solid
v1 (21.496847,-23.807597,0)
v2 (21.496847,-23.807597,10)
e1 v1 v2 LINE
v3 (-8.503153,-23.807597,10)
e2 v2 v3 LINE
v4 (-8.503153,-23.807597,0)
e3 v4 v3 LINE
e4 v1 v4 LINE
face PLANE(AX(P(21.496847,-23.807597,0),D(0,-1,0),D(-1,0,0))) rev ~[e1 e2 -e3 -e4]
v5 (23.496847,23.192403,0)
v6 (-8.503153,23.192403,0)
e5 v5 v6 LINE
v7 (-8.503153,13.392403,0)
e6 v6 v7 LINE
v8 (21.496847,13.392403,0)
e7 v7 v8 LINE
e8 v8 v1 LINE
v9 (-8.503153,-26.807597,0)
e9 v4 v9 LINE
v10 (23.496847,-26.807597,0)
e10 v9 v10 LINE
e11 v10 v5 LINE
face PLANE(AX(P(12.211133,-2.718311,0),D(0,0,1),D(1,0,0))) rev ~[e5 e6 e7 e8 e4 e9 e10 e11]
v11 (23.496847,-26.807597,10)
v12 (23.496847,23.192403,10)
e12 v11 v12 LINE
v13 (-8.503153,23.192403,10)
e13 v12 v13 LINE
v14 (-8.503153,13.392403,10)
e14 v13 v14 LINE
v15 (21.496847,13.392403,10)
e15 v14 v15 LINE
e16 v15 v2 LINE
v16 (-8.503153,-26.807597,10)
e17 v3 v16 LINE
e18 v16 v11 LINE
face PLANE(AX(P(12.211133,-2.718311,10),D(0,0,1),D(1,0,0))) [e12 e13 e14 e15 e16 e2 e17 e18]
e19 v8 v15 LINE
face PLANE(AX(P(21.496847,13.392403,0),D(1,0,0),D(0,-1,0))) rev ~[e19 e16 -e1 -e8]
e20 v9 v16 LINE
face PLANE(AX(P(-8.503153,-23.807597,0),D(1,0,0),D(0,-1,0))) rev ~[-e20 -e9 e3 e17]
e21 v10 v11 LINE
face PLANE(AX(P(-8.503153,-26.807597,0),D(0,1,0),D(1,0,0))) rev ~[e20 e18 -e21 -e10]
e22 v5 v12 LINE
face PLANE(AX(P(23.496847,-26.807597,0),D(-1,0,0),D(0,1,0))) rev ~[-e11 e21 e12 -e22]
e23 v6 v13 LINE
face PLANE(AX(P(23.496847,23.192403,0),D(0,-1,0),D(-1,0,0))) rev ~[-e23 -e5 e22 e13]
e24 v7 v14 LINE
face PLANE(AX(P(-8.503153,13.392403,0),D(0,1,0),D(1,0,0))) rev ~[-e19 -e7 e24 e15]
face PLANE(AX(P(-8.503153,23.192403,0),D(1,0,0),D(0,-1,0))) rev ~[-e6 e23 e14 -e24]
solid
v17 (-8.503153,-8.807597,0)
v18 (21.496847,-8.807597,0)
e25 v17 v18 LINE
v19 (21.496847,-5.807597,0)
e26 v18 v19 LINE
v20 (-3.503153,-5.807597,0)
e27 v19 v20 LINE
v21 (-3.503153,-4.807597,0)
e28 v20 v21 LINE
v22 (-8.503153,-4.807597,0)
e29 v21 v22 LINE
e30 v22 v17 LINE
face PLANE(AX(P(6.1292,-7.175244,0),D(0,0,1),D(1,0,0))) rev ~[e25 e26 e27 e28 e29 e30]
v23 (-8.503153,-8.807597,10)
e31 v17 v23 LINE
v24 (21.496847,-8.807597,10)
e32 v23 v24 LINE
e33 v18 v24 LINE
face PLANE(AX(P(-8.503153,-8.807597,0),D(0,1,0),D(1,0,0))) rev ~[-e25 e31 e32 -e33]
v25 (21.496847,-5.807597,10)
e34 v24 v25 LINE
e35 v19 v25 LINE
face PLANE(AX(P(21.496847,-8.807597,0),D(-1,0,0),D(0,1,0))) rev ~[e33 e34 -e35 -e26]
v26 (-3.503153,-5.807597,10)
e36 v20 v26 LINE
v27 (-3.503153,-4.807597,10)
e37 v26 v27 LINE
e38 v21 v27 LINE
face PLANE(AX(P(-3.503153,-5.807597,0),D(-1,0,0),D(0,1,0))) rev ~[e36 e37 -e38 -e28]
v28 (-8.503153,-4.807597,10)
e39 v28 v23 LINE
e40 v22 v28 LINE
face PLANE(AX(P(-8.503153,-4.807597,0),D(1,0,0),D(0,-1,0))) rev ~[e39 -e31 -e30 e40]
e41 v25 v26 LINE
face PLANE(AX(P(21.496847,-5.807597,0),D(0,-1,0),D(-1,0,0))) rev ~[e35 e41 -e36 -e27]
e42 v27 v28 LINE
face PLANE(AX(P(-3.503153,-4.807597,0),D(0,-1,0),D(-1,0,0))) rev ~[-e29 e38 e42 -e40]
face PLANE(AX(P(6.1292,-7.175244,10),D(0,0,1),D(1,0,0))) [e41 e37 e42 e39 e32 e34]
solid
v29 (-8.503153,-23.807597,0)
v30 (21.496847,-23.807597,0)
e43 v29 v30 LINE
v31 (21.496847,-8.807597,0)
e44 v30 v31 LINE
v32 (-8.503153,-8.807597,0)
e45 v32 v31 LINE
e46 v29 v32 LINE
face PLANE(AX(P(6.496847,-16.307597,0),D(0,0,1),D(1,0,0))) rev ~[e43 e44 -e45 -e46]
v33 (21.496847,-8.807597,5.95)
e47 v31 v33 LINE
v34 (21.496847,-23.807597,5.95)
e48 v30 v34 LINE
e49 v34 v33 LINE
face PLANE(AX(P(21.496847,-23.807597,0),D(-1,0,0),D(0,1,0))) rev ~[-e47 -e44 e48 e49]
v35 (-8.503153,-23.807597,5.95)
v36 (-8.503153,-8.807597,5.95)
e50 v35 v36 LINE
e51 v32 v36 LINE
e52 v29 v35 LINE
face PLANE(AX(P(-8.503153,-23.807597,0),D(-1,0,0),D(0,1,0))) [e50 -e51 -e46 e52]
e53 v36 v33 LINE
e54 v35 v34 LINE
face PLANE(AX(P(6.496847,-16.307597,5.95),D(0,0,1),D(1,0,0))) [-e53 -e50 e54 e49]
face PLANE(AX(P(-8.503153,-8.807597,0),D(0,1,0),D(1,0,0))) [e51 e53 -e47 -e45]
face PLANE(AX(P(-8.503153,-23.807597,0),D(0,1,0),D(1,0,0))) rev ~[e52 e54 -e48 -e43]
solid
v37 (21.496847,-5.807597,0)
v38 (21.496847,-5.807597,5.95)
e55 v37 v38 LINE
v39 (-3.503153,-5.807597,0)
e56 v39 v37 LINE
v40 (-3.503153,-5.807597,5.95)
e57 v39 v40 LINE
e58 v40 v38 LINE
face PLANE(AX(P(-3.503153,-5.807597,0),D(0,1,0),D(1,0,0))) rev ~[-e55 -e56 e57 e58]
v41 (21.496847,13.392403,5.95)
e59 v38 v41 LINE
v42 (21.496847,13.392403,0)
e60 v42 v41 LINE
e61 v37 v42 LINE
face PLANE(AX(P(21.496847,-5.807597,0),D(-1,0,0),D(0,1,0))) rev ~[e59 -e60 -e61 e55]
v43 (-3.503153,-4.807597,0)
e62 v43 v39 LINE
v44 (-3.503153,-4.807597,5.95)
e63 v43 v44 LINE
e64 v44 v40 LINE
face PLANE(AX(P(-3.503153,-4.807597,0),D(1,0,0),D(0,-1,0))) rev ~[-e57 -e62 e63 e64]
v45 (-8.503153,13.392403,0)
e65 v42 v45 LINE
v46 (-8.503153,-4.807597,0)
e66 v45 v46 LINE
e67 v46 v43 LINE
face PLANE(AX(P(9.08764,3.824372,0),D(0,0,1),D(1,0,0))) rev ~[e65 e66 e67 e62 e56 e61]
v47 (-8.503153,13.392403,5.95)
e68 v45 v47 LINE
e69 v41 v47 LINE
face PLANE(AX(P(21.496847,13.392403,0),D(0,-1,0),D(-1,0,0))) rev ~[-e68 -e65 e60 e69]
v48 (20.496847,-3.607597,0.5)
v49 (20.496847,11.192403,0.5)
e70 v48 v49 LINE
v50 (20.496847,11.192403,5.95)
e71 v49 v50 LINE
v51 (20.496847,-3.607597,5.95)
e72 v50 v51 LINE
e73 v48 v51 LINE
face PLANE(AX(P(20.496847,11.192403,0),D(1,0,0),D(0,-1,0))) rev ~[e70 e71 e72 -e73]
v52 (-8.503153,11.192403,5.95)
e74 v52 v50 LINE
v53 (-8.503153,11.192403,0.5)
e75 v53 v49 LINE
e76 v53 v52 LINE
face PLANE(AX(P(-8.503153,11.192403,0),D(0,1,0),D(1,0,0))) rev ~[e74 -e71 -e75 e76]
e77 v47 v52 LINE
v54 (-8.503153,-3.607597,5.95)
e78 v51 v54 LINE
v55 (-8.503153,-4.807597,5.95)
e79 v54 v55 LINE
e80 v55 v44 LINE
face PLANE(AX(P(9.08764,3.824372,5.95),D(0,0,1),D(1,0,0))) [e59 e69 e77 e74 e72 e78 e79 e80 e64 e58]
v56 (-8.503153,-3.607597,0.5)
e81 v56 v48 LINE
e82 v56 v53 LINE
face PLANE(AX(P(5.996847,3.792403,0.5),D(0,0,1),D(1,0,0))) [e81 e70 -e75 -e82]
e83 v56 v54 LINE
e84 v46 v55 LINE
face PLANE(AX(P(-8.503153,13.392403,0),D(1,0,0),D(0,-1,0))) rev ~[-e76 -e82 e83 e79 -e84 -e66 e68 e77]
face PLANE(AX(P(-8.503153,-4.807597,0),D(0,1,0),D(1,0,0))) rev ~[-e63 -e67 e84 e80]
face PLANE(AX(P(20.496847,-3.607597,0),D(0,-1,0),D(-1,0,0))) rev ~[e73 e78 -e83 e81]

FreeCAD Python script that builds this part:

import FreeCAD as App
import Part
import Sketcher
Q = App.Units.Quantity


def add_polygon(sketch, points):
    """Adds a closed chain of lines whose ends are joined by coincident constraints."""
    first, n = sketch.GeometryCount, len(points)
    for a, b in zip(points, points[1:] + points[:1]):
        sketch.addGeometry(Part.LineSegment(App.Vector(*a, 0), App.Vector(*b, 0)), False)
    for i in range(n):
        sketch.addConstraint(Sketcher.Constraint("Coincident", first + i, 2, first + (i + 1) % n, 1))

doc = App.newDocument("Part")
body = doc.addObject("PartDesign::Body", "Body")

# Sketch on XY plane
sketch1 = doc.addObject("Sketcher::SketchObject", "Sketch")
body.addObject(sketch1)
sketch1.AttachmentSupport = (doc.XY_Plane, [""])
sketch1.MapMode = "FlatFace"
add_polygon(sketch1, [(-8.503153, 11.192403), (-8.503153, -3.607597), (20.496847, -3.607597), (20.496847, 11.192403)])  # lines 0-3
sketch1.addConstraint([
    Sketcher.Constraint("Vertical", 0),
    Sketcher.Constraint("Horizontal", 1),
    Sketcher.Constraint("Vertical", 2),
    Sketcher.Constraint("Horizontal", 3),
    Sketcher.Constraint("DistanceX", 1, 1, 1, 2, Q("29 mm")),
    Sketcher.Constraint("DistanceY", 0, 2, 0, 1, Q("14.8 mm")),
    Sketcher.Constraint("DistanceX", 0, 2, -1, 1, Q("8.503153 mm")),
    Sketcher.Constraint("DistanceY", 0, 2, -1, 1, Q("3.607597 mm")),
])
pad1 = doc.addObject("PartDesign::Pad", "Pad")
body.addObject(pad1)
pad1.Profile = sketch1
pad1.Length = 0.5

# Sketch on XY plane
sketch2 = doc.addObject("Sketcher::SketchObject", "Sketch001")
body.addObject(sketch2)
sketch2.AttachmentSupport = (doc.XY_Plane, [""])
sketch2.MapMode = "FlatFace"
add_polygon(sketch2, [(-8.503153, 13.392403), (-8.503153, 11.192403), (20.496847, 11.192403), (20.496847, -3.607597), (-8.503153, -3.607597), (-8.503153, -4.807597), (-3.503153, -4.807597), (-3.503153, -5.807597), (21.496847, -5.807597), (21.496847, 13.392403)])  # lines 0-9
sketch2.addConstraint([
    Sketcher.Constraint("Vertical", 0),
    Sketcher.Constraint("Horizontal", 1),
    Sketcher.Constraint("Vertical", 2),
    Sketcher.Constraint("Horizontal", 3),
    Sketcher.Constraint("Vertical", 4),
    Sketcher.Constraint("Horizontal", 5),
    Sketcher.Constraint("Vertical", 6),
    Sketcher.Constraint("Horizontal", 7),
    Sketcher.Constraint("Vertical", 8),
    Sketcher.Constraint("Horizontal", 9),
    Sketcher.Constraint("Vertical", 0, 2, 3, 2),
    Sketcher.Constraint("DistanceX", 1, 1, 1, 2, Q("29 mm")),
    Sketcher.Constraint("DistanceX", 5, 1, 5, 2, Q("5 mm")),
    Sketcher.Constraint("DistanceX", 7, 1, 7, 2, Q("25 mm")),
    Sketcher.Constraint("DistanceY", 6, 2, 6, 1, Q("1 mm")),
    Sketcher.Constraint("DistanceY", 0, 2, 0, 1, Q("2.2 mm")),
    Sketcher.Constraint("DistanceY", 2, 2, 2, 1, Q("14.8 mm")),
    Sketcher.Constraint("DistanceY", 4, 2, 4, 1, Q("1.2 mm")),
    Sketcher.Constraint("DistanceX", 0, 2, -1, 1, Q("8.503153 mm")),
    Sketcher.Constraint("DistanceY", -1, 1, 0, 2, Q("11.192403 mm")),
])
pad2 = doc.addObject("PartDesign::Pad", "Pad001")
body.addObject(pad2)
pad2.Profile = sketch2
pad2.Length = 5.95
body2 = doc.addObject("PartDesign::Body", "Body001")

# Sketch on XY plane
sketch3 = doc.addObject("Sketcher::SketchObject", "Sketch002")
body2.addObject(sketch3)
sketch3.AttachmentSupport = (doc.getObject("XY_Plane001"), [""])
sketch3.MapMode = "FlatFace"
add_polygon(sketch3, [(-8.503153, -8.807597), (-8.503153, -23.807597), (21.496847, -23.807597), (21.496847, -8.807597)])  # lines 0-3
sketch3.addConstraint([
    Sketcher.Constraint("Vertical", 0),
    Sketcher.Constraint("Horizontal", 1),
    Sketcher.Constraint("Vertical", 2),
    Sketcher.Constraint("Horizontal", 3),
    Sketcher.Constraint("DistanceX", 1, 1, 1, 2, Q("30 mm")),
    Sketcher.Constraint("DistanceY", 0, 2, 0, 1, Q("15 mm")),
    Sketcher.Constraint("DistanceX", 0, 2, -1, 1, Q("8.503153 mm")),
    Sketcher.Constraint("DistanceY", 0, 2, -1, 1, Q("23.807597 mm")),
])
pad3 = doc.addObject("PartDesign::Pad", "Pad002")
body2.addObject(pad3)
pad3.Profile = sketch3
pad3.Length = 5.95
body3 = doc.addObject("PartDesign::Body", "Body002")

# Sketch on XY plane
sketch4 = doc.addObject("Sketcher::SketchObject", "Sketch003")
body3.addObject(sketch4)
sketch4.AttachmentSupport = (doc.getObject("XY_Plane002"), [""])
sketch4.MapMode = "FlatFace"
add_polygon(sketch4, [(23.496847, 23.192403), (-8.503153, 23.192403), (-8.503153, 13.392403), (21.496847, 13.392403), (21.496847, -23.807597), (-8.503153, -23.807597), (-8.503153, -26.807597), (23.496847, -26.807597)])  # lines 0-7
sketch4.addConstraint([
    Sketcher.Constraint("Horizontal", 0),
    Sketcher.Constraint("Vertical", 1),
    Sketcher.Constraint("Horizontal", 2),
    Sketcher.Constraint("Vertical", 3),
    Sketcher.Constraint("Horizontal", 4),
    Sketcher.Constraint("Vertical", 5),
    Sketcher.Constraint("Horizontal", 6),
    Sketcher.Constraint("Vertical", 7),
    Sketcher.Constraint("Vertical", 1, 2, 4, 2),
    Sketcher.Constraint("DistanceX", 0, 2, 0, 1, Q("32 mm")),
    Sketcher.Constraint("DistanceX", 2, 1, 2, 2, Q("30 mm")),
    Sketcher.Constraint("DistanceY", 5, 2, 5, 1, Q("3 mm")),
    Sketcher.Constraint("DistanceY", 7, 1, 7, 2, Q("50 mm")),
    Sketcher.Constraint("DistanceY", 1, 2, 1, 1, Q("9.8 mm")),
    Sketcher.Constraint("DistanceX", 0, 2, -1, 1, Q("8.503153 mm")),
    Sketcher.Constraint("DistanceY", -1, 1, 0, 2, Q("23.192403 mm")),
])
pad4 = doc.addObject("PartDesign::Pad", "Pad003")
body3.addObject(pad4)
pad4.Profile = sketch4
pad4.Length = 10
body4 = doc.addObject("PartDesign::Body", "Body003")

# Sketch on XY plane
sketch5 = doc.addObject("Sketcher::SketchObject", "Sketch004")
body4.addObject(sketch5)
sketch5.AttachmentSupport = (doc.getObject("XY_Plane003"), [""])
sketch5.MapMode = "FlatFace"
add_polygon(sketch5, [(-3.503153, -4.807597), (-8.503153, -4.807597), (-8.503153, -8.807597), (21.496847, -8.807597), (21.496847, -5.807597), (-3.503153, -5.807597)])  # lines 0-5
sketch5.addConstraint([
    Sketcher.Constraint("Horizontal", 0),
    Sketcher.Constraint("Vertical", 1),
    Sketcher.Constraint("Horizontal", 2),
    Sketcher.Constraint("Vertical", 3),
    Sketcher.Constraint("Horizontal", 4),
    Sketcher.Constraint("Vertical", 5),
    Sketcher.Constraint("DistanceX", 0, 2, 0, 1, Q("5 mm")),
    Sketcher.Constraint("DistanceX", 2, 1, 2, 2, Q("30 mm")),
    Sketcher.Constraint("DistanceY", 1, 2, 1, 1, Q("4 mm")),
    Sketcher.Constraint("DistanceY", 3, 1, 3, 2, Q("3 mm")),
    Sketcher.Constraint("DistanceX", 0, 2, -1, 1, Q("8.503153 mm")),
    Sketcher.Constraint("DistanceY", 0, 2, -1, 1, Q("4.807597 mm")),
])
pad5 = doc.addObject("PartDesign::Pad", "Pad004")
body4.addObject(pad5)
pad5.Profile = sketch5
pad5.Length = 10

doc.recompute()
